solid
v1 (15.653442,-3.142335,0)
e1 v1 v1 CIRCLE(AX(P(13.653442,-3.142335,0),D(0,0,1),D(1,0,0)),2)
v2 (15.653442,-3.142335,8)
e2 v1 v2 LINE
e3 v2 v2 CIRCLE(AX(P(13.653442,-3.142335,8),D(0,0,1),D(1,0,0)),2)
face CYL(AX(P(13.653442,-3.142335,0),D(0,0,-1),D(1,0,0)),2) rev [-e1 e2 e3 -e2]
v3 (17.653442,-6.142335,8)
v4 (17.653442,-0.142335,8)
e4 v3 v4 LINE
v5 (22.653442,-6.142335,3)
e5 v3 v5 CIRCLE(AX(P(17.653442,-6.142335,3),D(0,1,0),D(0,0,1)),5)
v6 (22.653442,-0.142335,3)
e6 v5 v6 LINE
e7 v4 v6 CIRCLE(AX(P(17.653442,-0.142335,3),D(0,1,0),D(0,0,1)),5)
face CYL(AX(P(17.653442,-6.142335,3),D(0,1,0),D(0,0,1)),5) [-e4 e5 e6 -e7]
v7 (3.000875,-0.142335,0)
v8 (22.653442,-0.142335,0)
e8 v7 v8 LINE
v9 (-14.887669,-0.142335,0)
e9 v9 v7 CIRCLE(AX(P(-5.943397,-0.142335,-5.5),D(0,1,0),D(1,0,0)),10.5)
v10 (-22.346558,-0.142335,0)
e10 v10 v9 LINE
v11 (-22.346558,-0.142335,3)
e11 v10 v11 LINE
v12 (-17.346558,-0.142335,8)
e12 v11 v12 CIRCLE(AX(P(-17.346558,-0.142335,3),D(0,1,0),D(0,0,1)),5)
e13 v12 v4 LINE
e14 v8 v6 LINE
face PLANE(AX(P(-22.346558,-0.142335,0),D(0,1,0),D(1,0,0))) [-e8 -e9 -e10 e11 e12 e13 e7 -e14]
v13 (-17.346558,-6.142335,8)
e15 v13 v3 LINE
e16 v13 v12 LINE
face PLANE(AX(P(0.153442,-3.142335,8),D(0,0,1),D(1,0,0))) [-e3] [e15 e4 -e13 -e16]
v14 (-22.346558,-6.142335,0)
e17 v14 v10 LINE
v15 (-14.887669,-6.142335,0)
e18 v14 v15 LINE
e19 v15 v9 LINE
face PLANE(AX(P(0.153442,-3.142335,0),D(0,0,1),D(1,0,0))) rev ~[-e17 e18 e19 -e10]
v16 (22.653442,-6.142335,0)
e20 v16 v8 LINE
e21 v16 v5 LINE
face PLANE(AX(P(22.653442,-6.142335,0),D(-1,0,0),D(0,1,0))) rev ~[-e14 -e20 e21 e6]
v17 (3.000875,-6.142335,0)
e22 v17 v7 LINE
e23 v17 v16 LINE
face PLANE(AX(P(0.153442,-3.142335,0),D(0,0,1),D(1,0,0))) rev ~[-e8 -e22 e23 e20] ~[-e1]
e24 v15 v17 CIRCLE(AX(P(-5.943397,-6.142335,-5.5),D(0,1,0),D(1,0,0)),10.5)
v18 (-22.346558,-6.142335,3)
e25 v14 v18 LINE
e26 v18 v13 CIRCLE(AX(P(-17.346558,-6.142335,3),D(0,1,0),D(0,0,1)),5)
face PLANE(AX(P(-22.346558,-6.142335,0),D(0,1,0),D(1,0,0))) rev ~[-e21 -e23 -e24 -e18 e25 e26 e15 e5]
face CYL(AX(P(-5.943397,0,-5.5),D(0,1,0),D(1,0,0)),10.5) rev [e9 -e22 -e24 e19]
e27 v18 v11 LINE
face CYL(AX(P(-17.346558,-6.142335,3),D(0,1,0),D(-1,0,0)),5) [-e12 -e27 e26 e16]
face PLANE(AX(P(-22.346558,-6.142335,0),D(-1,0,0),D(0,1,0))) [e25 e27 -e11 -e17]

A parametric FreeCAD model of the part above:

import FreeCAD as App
import Part
import Sketcher


def edges_at(feature, points):
    """Names of the edges that pass closest to the given points."""
    edges = feature.Shape.Edges
    near = lambda p: min(range(len(edges)), key=lambda i: edges[i].distToShape(Part.Vertex(*p))[0])
    return sorted({f"Edge{near(p) + 1}" for p in points})


def add_polygon(sketch, points):
    """Adds a closed chain of lines whose ends are joined by coincident constraints."""
    first, n = sketch.GeometryCount, len(points)
    for a, b in zip(points, points[1:] + points[:1]):
        sketch.addGeometry(Part.LineSegment(App.Vector(*a, 0), App.Vector(*b, 0)), False)
    for i in range(n):
        sketch.addConstraint(Sketcher.Constraint("Coincident", first + i, 2, first + (i + 1) % n, 1))

doc = App.newDocument("Part")
body = doc.addObject("PartDesign::Body", "Body")

sketch1 = body.newObject("Sketcher::SketchObject", "Sketch")
sketch1.AttachmentSupport = (doc.getObject("XY_Plane"), [""])
sketch1.MapMode = "FlatFace"
add_polygon(sketch1, [(-22.3, -0.1), (-22.3, -6.1), (22.7, -6.1), (22.7, -0.1)])
sketch1.addGeometry(Part.Circle(App.Vector(13.7, -3.1, 0), App.Vector(0, 0, 1), 2), False)
sketch1.addConstraint([
    Sketcher.Constraint("Vertical", 0),
    Sketcher.Constraint("Horizontal", 1),
    Sketcher.Constraint("Vertical", 2),
    Sketcher.Constraint("Horizontal", 3),
    Sketcher.Constraint("Diameter", 4, 4.0),
    Sketcher.Constraint("DistanceX", 1, 1, 1, 2, 45.0),
    Sketcher.Constraint("DistanceY", 0, 2, 0, 1, 6.0),
    Sketcher.Constraint("DistanceX", 0, 2, 4, 3, 36.0),
    Sketcher.Constraint("DistanceY", 0, 2, 4, 3, 3.0),
    Sketcher.Constraint("DistanceX", 0, 2, -1, 1, 22.346558),
    Sketcher.Constraint("DistanceY", 4, 3, -1, 1, 3.142335),
])
pad1 = body.newObject("PartDesign::Pad", "Pad")
pad1.Profile = sketch1
pad1.Length = 8

sketch2 = body.newObject("Sketcher::SketchObject", "Sketch001")
sketch2.AttachmentSupport = (doc.getObject("XZ_Plane"), [""])
sketch2.MapMode = "FlatFace"
sketch2.addGeometry(Part.Circle(App.Vector(-6, -6, 0), App.Vector(0, 0, 1), 10), False)
sketch2.addConstraint([
    Sketcher.Constraint("Diameter", 0, 21.0),
    Sketcher.Constraint("DistanceY", 0, 3, -1, 1, 5.5),
    Sketcher.Constraint("DistanceX", 0, 3, -1, 1, 5.943397),
])
pocket1 = body.newObject("PartDesign::Pocket", "Pocket")
pocket1.Profile = sketch2
pocket1.Length = 8
pocket1.Reversed = True
doc.recompute()

fillet = body.newObject("PartDesign::Fillet", "Fillet")
fillet.Base = (pocket1, edges_at(pocket1, [(-22.347, -3.142, 8)]))
fillet.Radius = 5
doc.recompute()

fillet2 = body.newObject("PartDesign::Fillet", "Fillet001")
fillet2.Base = (fillet, edges_at(fillet, [(22.653, -3.142, 8)]))
fillet2.Radius = 5

doc.recompute()
